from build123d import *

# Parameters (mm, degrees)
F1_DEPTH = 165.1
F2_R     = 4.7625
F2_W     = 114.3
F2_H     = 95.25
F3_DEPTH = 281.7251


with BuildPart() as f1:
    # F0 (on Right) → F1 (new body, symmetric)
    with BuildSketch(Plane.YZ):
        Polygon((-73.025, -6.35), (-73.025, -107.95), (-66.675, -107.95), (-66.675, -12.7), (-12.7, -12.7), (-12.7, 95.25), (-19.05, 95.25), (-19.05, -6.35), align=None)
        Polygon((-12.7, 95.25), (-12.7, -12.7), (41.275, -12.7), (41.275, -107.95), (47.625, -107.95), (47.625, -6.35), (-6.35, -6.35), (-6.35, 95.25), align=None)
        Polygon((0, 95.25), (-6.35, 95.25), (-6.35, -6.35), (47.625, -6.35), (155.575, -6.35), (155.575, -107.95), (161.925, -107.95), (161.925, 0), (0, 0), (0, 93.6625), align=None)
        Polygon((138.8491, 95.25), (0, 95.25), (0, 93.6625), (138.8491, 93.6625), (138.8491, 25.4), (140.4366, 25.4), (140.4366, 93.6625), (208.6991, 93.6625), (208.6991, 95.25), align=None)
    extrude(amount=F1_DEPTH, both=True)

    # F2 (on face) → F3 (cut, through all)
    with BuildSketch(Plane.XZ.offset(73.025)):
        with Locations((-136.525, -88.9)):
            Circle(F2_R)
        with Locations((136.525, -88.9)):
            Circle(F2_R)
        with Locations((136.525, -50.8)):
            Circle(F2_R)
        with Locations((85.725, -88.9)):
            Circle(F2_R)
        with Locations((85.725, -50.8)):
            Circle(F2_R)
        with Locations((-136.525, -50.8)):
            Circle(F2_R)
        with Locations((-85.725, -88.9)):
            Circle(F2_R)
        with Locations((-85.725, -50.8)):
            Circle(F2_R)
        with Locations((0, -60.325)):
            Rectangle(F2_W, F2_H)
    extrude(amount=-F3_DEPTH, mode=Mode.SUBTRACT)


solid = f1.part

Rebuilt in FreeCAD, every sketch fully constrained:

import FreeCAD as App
import Part
import Sketcher
Q = App.Units.Quantity


def add_polygon(sketch, points):
    """Adds a closed chain of lines whose ends are joined by coincident constraints."""
    first, n = sketch.GeometryCount, len(points)
    for a, b in zip(points, points[1:] + points[:1]):
        sketch.addGeometry(Part.LineSegment(App.Vector(*a, 0), App.Vector(*b, 0)), False)
    for i in range(n):
        sketch.addConstraint(Sketcher.Constraint("Coincident", first + i, 2, first + (i + 1) % n, 1))

doc = App.newDocument("Part")
body = doc.addObject("PartDesign::Body", "Body")

# Sketch on YZ plane
sketch1 = body.newObject("Sketcher::SketchObject", "Sketch")
sketch1.AttachmentSupport = (doc.getObject("YZ_Plane"), [""])
sketch1.MapMode = "FlatFace"
add_polygon(sketch1, [(-73.025, -6.35), (-73.025, -107.95), (-66.675, -107.95), (-66.675, -12.7), (41.275, -12.7), (41.275, -107.95), (47.625, -107.95), (47.625, -6.35), (155.575, -6.35), (155.575, -107.95), (161.925, -107.95), (161.925, 0), (0, 0), (0, 93.6625), (138.8491, 93.6625), (138.8491, 25.4), (140.4366, 25.4), (140.4366, 93.6625), (208.6991, 93.6625), (208.6991, 95.25), (-19.05, 95.25), (-19.05, -6.35)])  # lines 0-21
sketch1.addConstraint([
    Sketcher.Constraint("Vertical", 0),
    Sketcher.Constraint("Horizontal", 1),
    Sketcher.Constraint("Vertical", 2),
    Sketcher.Constraint("Horizontal", 3),
    Sketcher.Constraint("Vertical", 4),
    Sketcher.Constraint("Horizontal", 5),
    Sketcher.Constraint("Vertical", 6),
    Sketcher.Constraint("Horizontal", 7),
    Sketcher.Constraint("Vertical", 8),
    Sketcher.Constraint("Horizontal", 9),
    Sketcher.Constraint("Vertical", 10),
    Sketcher.Constraint("Horizontal", 11),
    Sketcher.Constraint("Vertical", 12),
    Sketcher.Constraint("Horizontal", 13),
    Sketcher.Constraint("Vertical", 14),
    Sketcher.Constraint("Horizontal", 15),
    Sketcher.Constraint("Vertical", 16),
    Sketcher.Constraint("Horizontal", 17),
    Sketcher.Constraint("Vertical", 18),
    Sketcher.Constraint("Horizontal", 19),
    Sketcher.Constraint("Vertical", 20),
    Sketcher.Constraint("Horizontal", 21),
    Sketcher.Constraint("Coincident", 11, 2, -1, 1),
    Sketcher.Constraint("Horizontal", 1, 2, 4, 2),
    Sketcher.Constraint("Horizontal", 5, 2, 8, 2),
    Sketcher.Constraint("Horizontal", 13, 2, 16, 2),
    Sketcher.Constraint("Horizontal", 7, 2, 20, 2),
    Sketcher.Constraint("Equal", 1, 5),
    Sketcher.Constraint("Equal", 3, 7),
    Sketcher.Constraint("Equal", 5, 9),
    Sketcher.Constraint("Equal", 7, 10),
    Sketcher.Constraint("Equal", 17, 14),
    Sketcher.Constraint("Equal", 15, 18),
    Sketcher.Constraint("Equal", 8, 20),
    Sketcher.Constraint("DistanceY", 0, 2, 0, 1, Q("4 in")),
    Sketcher.Constraint("DistanceY", -1, 1, 14, 2, Q("1 in")),
    Sketcher.Constraint("DistanceX", 1, 1, 1, 2, Q("0.25 in")),
    Sketcher.Constraint("DistanceX", 3, 1, 3, 2, Q("4.25 in")),
    Sketcher.Constraint("DistanceY", 2, 1, 2, 2, Q("3.75 in")),
    Sketcher.Constraint("DistanceX", 11, 2, 11, 1, Q("6.375 in")),
    Sketcher.Constraint("DistanceX", 15, 1, 15, 2, Q("0.0625 in")),
    Sketcher.Constraint("DistanceX", 21, 2, 21, 1, Q("2.125 in")),
    Sketcher.Constraint("DistanceX", 13, 1, 13, 2, Q("5.4665 in")),
])
pad1 = body.newObject("PartDesign::Pad", "Pad")
pad1.Profile = sketch1
pad1.Length = Q("13 in")
pad1.Midplane = True

# Sketch on XZ plane
sketch2 = body.newObject("Sketcher::SketchObject", "Sketch001")
sketch2.AttachmentSupport = (doc.getObject("XZ_Plane"), [""])
sketch2.MapMode = "FlatFace"
sketch2.AttachmentOffset = App.Placement(App.Vector(0, 0, 2.875 * 25.4), App.Rotation())
sketch2.addGeometry(Part.Circle(App.Vector(-136.525, -88.9, 0), App.Vector(0, 0, 1), 4.7625), False)  # 0
sketch2.addGeometry(Part.Circle(App.Vector(136.525, -88.9, 0), App.Vector(0, 0, 1), 4.7625), False)  # 1
sketch2.addGeometry(Part.Circle(App.Vector(136.525, -50.8, 0), App.Vector(0, 0, 1), 4.7625), False)  # 2
sketch2.addGeometry(Part.Circle(App.Vector(85.725, -88.9, 0), App.Vector(0, 0, 1), 4.7625), False)  # 3
sketch2.addGeometry(Part.Circle(App.Vector(85.725, -50.8, 0), App.Vector(0, 0, 1), 4.7625), False)  # 4
sketch2.addGeometry(Part.Circle(App.Vector(-136.525, -50.8, 0), App.Vector(0, 0, 1), 4.7625), False)  # 5
sketch2.addGeometry(Part.Circle(App.Vector(-85.725, -88.9, 0), App.Vector(0, 0, 1), 4.7625), False)  # 6
sketch2.addGeometry(Part.Circle(App.Vector(-85.725, -50.8, 0), App.Vector(0, 0, 1), 4.7625), False)  # 7
add_polygon(sketch2, [(-57.15, -12.7), (-57.15, -107.95), (57.15, -107.95), (57.15, -12.7)])  # lines 8-11
sketch2.addConstraint([
    Sketcher.Constraint("Vertical", 8),
    Sketcher.Constraint("Horizontal", 9),
    Sketcher.Constraint("Vertical", 10),
    Sketcher.Constraint("Horizontal", 11),
    Sketcher.Constraint("Equal", 0, 1),
    Sketcher.Constraint("Equal", 1, 2),
    Sketcher.Constraint("Equal", 2, 3),
    Sketcher.Constraint("Equal", 3, 4),
    Sketcher.Constraint("Equal", 4, 5),
    Sketcher.Constraint("Equal", 5, 6),
    Sketcher.Constraint("Equal", 6, 7),
    Sketcher.Constraint("Symmetric", 0, 3, 1, 3, -2),
    Sketcher.Constraint("Symmetric", 2, 3, 5, 3, -2),
    Sketcher.Constraint("Symmetric", 3, 3, 6, 3, -2),
    Sketcher.Constraint("Symmetric", 4, 3, 7, 3, -2),
    Sketcher.Constraint("Horizontal", 1, 3, 3, 3),
    Sketcher.Constraint("Horizontal", 2, 3, 4, 3),
    Sketcher.Constraint("Vertical", 1, 3, 2, 3),
    Sketcher.Constraint("Vertical", 3, 3, 4, 3),
    Sketcher.Constraint("Diameter", 0, Q("0.375 in")),
    Sketcher.Constraint("DistanceX", 9, 1, 9, 2, Q("4.5 in")),
    Sketcher.Constraint("DistanceY", 2, 3, -1, 1, Q("2 in")),
    Sketcher.Constraint("DistanceX", 3, 3, 1, 3, Q("2 in")),
    Sketcher.Constraint("DistanceY", 3, 3, 10, 2, Q("3 in")),
    Sketcher.Constraint("DistanceY", 8, 2, 8, 1, Q("3.75 in")),
    Sketcher.Constraint("DistanceY", 0, 3, -1, 1, Q("3.5 in")),
    Sketcher.Constraint("DistanceX", 8, 2, -1, 1, Q("2.25 in")),
    Sketcher.Constraint("DistanceX", 0, 3, 1, 3, Q("10.75 in")),
])
pocket1 = body.newObject("PartDesign::Pocket", "Pocket")
pocket1.Profile = sketch2
pocket1.Type = "ThroughAll"

doc.recompute()
